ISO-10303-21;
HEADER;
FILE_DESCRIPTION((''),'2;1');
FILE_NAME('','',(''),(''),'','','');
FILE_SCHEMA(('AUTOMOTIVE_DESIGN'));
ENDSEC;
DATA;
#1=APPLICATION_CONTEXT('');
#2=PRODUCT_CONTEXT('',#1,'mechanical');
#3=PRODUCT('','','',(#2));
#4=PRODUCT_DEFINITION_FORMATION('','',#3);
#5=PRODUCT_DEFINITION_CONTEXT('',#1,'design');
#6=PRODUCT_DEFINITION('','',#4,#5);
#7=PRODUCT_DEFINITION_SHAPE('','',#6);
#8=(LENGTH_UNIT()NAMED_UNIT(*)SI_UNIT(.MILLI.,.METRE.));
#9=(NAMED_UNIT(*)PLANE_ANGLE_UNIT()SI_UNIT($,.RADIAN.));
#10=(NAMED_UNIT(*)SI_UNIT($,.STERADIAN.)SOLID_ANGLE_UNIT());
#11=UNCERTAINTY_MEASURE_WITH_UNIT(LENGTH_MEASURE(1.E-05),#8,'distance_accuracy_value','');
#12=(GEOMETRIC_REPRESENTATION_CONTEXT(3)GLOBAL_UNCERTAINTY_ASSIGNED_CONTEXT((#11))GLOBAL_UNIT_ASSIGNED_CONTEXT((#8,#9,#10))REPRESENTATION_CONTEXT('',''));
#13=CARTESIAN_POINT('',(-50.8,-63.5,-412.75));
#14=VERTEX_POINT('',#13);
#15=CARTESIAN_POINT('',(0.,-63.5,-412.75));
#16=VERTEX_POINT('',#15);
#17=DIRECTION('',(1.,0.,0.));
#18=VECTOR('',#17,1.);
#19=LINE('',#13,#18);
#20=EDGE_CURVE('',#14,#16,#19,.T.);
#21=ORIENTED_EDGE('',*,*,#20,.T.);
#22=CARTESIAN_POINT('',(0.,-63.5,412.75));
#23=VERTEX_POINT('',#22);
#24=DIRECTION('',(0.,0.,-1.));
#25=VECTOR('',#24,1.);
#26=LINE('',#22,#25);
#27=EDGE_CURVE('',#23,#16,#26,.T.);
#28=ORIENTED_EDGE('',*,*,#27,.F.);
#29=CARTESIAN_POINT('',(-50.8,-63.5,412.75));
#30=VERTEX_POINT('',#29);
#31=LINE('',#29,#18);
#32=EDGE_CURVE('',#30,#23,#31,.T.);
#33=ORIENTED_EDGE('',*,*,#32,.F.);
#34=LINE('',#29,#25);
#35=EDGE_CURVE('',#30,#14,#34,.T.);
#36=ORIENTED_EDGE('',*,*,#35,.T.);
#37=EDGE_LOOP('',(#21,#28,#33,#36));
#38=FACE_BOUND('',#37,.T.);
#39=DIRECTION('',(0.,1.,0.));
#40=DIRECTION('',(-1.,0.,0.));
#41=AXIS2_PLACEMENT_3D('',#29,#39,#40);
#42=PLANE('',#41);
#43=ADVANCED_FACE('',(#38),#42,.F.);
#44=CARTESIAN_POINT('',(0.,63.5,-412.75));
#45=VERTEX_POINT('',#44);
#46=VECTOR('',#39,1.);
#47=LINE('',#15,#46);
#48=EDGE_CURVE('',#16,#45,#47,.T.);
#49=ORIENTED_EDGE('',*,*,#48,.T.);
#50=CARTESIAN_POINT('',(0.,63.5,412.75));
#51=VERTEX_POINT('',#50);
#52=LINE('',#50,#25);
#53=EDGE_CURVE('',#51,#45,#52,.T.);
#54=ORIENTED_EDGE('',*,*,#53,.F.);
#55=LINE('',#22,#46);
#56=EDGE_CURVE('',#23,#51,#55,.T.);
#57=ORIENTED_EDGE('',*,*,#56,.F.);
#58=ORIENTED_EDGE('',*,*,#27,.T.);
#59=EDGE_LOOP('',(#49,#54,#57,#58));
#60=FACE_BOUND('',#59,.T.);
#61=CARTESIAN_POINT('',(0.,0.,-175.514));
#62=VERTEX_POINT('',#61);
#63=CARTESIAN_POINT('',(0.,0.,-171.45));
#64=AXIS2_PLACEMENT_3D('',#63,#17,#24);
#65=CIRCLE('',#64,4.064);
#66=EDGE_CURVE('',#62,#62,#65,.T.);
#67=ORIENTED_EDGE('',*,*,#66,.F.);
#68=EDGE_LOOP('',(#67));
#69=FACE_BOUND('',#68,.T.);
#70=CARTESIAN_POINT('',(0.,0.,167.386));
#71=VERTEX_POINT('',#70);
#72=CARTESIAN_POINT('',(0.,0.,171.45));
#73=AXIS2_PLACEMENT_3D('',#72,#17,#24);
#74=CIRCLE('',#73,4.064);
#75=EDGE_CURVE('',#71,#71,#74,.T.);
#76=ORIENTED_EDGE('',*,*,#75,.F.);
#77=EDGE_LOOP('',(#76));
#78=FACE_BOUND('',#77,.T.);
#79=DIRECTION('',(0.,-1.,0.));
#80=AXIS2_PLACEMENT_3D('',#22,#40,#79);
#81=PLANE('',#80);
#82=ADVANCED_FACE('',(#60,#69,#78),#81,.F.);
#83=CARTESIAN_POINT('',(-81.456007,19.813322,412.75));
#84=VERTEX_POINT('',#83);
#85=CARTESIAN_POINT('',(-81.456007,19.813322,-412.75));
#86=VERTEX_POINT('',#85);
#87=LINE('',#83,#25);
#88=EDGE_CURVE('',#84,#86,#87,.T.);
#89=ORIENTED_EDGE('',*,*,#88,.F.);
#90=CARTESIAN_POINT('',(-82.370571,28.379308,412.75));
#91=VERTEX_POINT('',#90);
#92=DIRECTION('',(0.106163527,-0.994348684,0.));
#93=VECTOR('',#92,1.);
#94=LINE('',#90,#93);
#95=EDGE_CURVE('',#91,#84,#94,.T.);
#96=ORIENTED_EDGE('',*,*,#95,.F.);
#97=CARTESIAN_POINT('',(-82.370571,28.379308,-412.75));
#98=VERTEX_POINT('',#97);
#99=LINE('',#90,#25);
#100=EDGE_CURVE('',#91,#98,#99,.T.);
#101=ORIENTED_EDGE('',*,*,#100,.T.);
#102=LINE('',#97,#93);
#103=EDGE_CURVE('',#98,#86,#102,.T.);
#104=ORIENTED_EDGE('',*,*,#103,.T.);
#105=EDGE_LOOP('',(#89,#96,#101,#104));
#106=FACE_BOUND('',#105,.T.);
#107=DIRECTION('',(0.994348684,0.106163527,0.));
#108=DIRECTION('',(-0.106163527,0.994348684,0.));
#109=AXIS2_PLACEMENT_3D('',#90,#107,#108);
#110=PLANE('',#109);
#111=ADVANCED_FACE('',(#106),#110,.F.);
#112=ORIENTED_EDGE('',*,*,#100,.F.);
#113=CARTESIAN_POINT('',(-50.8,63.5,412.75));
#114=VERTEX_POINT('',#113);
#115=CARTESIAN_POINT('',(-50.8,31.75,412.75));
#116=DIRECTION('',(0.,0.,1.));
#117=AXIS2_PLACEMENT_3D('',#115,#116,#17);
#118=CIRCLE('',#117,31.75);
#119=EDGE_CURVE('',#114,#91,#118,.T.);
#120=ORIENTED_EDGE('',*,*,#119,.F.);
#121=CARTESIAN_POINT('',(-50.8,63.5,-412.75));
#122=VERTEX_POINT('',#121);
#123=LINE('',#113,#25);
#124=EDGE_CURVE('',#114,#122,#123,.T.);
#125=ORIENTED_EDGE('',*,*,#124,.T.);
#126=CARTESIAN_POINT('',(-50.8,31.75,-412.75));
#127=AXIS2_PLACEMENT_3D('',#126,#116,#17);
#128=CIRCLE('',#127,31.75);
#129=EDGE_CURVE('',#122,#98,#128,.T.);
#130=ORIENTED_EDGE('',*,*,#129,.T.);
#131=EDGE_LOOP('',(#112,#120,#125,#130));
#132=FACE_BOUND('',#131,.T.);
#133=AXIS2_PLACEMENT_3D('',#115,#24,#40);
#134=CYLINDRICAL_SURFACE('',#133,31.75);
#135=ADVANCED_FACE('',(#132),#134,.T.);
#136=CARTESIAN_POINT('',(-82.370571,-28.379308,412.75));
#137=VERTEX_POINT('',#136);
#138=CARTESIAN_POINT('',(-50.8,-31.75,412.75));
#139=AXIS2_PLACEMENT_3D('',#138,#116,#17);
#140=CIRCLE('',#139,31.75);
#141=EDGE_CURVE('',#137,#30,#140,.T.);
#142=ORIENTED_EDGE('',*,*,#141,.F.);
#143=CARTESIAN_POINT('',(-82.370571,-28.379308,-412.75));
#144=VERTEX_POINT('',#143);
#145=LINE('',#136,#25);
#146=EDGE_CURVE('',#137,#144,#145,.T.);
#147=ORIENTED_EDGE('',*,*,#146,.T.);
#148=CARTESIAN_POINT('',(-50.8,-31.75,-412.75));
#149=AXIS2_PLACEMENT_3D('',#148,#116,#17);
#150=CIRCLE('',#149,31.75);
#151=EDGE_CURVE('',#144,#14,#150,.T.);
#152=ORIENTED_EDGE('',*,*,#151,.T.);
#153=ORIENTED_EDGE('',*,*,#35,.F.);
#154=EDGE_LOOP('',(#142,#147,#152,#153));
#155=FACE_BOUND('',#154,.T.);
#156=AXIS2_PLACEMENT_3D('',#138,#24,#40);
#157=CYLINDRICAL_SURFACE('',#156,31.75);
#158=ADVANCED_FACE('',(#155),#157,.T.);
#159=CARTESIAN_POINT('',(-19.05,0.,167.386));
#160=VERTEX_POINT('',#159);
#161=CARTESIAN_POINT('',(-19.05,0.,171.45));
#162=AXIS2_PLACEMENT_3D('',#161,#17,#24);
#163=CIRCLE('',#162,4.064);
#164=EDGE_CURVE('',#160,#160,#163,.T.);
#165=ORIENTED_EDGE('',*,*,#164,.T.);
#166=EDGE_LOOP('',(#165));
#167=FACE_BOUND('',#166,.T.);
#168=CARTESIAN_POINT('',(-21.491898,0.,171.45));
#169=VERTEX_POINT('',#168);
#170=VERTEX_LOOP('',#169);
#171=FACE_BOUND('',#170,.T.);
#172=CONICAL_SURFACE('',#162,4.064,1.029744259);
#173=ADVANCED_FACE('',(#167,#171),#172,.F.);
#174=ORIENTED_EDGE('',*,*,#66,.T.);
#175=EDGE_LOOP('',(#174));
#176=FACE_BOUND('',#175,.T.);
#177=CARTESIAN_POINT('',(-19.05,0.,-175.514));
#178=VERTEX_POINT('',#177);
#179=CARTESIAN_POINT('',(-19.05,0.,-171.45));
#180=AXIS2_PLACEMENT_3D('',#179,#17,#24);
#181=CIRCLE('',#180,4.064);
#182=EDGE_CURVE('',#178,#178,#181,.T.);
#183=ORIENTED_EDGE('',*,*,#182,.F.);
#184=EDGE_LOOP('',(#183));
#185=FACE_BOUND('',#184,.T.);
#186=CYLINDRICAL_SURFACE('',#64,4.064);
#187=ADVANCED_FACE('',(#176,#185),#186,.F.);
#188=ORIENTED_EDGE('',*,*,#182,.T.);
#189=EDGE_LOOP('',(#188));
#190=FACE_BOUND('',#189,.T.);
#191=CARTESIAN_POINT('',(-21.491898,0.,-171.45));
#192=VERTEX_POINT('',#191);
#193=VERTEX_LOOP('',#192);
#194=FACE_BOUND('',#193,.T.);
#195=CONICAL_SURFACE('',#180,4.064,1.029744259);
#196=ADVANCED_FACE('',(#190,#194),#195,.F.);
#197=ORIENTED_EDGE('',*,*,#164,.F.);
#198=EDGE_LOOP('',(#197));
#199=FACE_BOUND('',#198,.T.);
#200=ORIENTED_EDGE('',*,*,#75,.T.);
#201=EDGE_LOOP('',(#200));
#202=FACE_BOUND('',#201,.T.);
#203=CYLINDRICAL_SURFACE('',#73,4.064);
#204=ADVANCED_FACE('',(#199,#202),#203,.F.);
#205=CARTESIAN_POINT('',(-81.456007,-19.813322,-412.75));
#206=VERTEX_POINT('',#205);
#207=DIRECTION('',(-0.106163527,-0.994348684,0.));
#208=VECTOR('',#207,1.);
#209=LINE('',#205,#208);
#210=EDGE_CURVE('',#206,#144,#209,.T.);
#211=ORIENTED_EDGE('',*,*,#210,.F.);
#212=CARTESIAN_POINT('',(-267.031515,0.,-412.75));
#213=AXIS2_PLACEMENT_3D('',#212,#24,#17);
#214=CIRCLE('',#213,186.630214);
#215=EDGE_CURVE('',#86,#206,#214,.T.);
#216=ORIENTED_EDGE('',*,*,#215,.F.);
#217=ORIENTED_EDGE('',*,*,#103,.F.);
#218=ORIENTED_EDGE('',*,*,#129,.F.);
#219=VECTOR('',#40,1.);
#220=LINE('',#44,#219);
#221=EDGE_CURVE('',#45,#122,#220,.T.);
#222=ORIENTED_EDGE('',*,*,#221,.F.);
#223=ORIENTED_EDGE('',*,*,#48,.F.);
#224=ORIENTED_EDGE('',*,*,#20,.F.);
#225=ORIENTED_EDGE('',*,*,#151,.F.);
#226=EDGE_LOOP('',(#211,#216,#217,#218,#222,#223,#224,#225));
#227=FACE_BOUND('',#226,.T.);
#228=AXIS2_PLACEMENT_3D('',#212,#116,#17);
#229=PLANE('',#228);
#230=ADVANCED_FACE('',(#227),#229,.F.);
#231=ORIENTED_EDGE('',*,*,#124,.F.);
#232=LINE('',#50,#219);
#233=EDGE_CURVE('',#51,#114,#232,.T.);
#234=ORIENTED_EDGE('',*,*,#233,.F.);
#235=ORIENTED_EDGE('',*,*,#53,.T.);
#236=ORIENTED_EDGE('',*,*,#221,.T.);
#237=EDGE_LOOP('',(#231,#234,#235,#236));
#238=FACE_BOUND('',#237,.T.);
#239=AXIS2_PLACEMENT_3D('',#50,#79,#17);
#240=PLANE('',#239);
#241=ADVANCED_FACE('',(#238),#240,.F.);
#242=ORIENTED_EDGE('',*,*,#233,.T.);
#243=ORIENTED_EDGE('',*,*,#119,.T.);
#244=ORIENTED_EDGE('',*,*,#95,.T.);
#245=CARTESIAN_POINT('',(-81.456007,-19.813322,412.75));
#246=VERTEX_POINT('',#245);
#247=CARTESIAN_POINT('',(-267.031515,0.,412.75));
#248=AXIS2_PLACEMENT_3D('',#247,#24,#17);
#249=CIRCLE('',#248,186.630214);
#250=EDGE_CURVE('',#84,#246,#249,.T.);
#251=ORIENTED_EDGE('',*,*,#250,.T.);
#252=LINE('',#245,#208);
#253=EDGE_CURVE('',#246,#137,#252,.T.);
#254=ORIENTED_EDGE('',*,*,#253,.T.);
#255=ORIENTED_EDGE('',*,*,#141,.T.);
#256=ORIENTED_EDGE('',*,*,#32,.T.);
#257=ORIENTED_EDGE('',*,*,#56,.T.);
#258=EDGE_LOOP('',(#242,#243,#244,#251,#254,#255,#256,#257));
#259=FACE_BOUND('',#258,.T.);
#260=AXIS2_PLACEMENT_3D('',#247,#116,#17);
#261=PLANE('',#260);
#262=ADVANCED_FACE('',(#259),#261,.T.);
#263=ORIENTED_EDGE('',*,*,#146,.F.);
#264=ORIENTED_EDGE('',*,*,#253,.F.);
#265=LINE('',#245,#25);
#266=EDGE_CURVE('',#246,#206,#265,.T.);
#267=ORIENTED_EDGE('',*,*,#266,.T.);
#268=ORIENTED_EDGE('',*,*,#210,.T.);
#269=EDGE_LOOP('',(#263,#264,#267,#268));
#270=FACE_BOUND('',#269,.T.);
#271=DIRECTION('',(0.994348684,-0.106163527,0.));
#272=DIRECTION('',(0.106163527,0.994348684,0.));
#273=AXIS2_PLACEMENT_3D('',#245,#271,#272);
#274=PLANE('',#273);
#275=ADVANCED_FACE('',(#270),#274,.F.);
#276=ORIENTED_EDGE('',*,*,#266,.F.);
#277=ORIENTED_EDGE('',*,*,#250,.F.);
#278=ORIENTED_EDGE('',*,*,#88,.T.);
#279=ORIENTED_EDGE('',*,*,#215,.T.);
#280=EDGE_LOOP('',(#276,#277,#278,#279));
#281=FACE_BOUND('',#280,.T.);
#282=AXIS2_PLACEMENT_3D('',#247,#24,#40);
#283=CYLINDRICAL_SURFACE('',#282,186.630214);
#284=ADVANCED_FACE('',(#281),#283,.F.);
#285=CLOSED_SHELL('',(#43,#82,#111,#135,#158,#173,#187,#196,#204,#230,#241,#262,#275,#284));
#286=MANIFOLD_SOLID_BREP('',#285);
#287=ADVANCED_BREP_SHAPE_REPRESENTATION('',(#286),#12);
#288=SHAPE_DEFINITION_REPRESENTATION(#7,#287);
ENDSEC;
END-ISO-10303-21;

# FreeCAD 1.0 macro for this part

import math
import FreeCAD as App
import Part
import Sketcher
from FreeCAD import Vector
Q = App.Units.Quantity

doc = App.newDocument("Part")
body = doc.addObject("PartDesign::Body", "Body")

sketch1 = body.newObject("Sketcher::SketchObject", "Sketch")
sketch1.AttachmentSupport = (doc.getObject("XY_Plane"), [""])
sketch1.MapMode = "FlatFace"
sketch1.addGeometry(Part.LineSegment(Vector(-81.456007, -19.813322, 0), Vector(-82.370571, -28.379308, 0)), False)
sketch1.addGeometry(Part.ArcOfCircle(Part.Circle(Vector(-50.8, -31.75, 0), Vector(0, 0, 1), 31.75), math.radians(173.905794), math.radians(270)), False)
sketch1.addGeometry(Part.LineSegment(Vector(-50.8, -63.5, 0), Vector(0, -63.5, 0)), False)
sketch1.addGeometry(Part.LineSegment(Vector(0, -63.5, 0), Vector(0, 63.5, 0)), False)
sketch1.addGeometry(Part.LineSegment(Vector(0, 63.5, 0), Vector(-50.8, 63.5, 0)), False)
sketch1.addGeometry(Part.ArcOfCircle(Part.Circle(Vector(-50.8, 31.75, 0), Vector(0, 0, 1), 31.75), math.radians(90), math.radians(186.094206)), False)
sketch1.addGeometry(Part.LineSegment(Vector(-82.370571, 28.379308, 0), Vector(-81.456007, 19.813322, 0)), False)
sketch1.addGeometry(Part.ArcOfCircle(Part.Circle(Vector(-267.031515, 0, 0), Vector(0, 0, 1), 186.630214), math.radians(-6.094206), math.radians(6.094206)), False)
sketch1.addConstraint(Sketcher.Constraint("Tangent", 0, 2, 1, 1))
sketch1.addConstraint(Sketcher.Constraint("Tangent", 1, 2, 2, 1))
sketch1.addConstraint(Sketcher.Constraint("Coincident", 2, 2, 3, 1))
sketch1.addConstraint(Sketcher.Constraint("Coincident", 3, 2, 4, 1))
sketch1.addConstraint(Sketcher.Constraint("Tangent", 4, 2, 5, 1))
sketch1.addConstraint(Sketcher.Constraint("Tangent", 5, 2, 6, 1))
sketch1.addConstraint(Sketcher.Constraint("Tangent", 6, 2, 7, 2))
sketch1.addConstraint(Sketcher.Constraint("Tangent", 7, 1, 0, 1))
sketch1.addConstraint(Sketcher.Constraint("Horizontal", 2))
sketch1.addConstraint(Sketcher.Constraint("Vertical", 3))
sketch1.addConstraint(Sketcher.Constraint("Horizontal", 4))
sketch1.addConstraint(Sketcher.Constraint("Equal", 1, 5))
sketch1.addConstraint(Sketcher.Constraint("Symmetric", 2, 2, 3, 2, -1, 1))
sketch1.addConstraint(Sketcher.Constraint("Symmetric", 0, 2, 5, 2, -1))
sketch1.addConstraint(Sketcher.Constraint("DistanceX", 2, 1, 2, 2, Q("2 in")))
sketch1.addConstraint(Sketcher.Constraint("DistanceY", 3, 1, 3, 2, Q("5 in")))
sketch1.addConstraint(Sketcher.Constraint("Radius", 1, Q("1.25 in")))
sketch1.addConstraint(Sketcher.Constraint("Radius", 7, Q("186.630214 mm")))
sketch1.addConstraint(Sketcher.Constraint("Distance", 0, Q("8.61467 mm")))
pad1 = body.newObject("PartDesign::Pad", "Pad")
pad1.Profile = sketch1
pad1.Length = Q("32.5 in")
pad1.Midplane = True

sketch2 = body.newObject("Sketcher::SketchObject", "Sketch001")
sketch2.AttachmentSupport = (doc.getObject("YZ_Plane"), [""])
sketch2.MapMode = "FlatFace"
sketch2.addGeometry(Part.Circle(Vector(0, 171.45, 0), Vector(0, 0, 1), 4.064), False)
sketch2.addGeometry(Part.Circle(Vector(0, -171.45, 0), Vector(0, 0, 1), 4.064), False)
sketch2.addConstraint(Sketcher.Constraint("Equal", 0, 1))
sketch2.addConstraint(Sketcher.Constraint("Symmetric", 0, 3, 1, 3, -1, 1))
sketch2.addConstraint(Sketcher.Constraint("PointOnObject", 0, 3, -2))
sketch2.addConstraint(Sketcher.Constraint("Diameter", 0, Q("0.32 in")))
sketch2.addConstraint(Sketcher.Constraint("DistanceY", 1, 3, 0, 3, Q("13.5 in")))
doc.recompute()
hole = body.newObject("PartDesign::Hole", "Hole")
hole.Profile = sketch2
hole.ThreadType = "None"
hole.Diameter = Q("0.32 in")
hole.DepthType = "Dimension"
hole.Depth = Q("0.75 in")
hole.DrillPoint = "Angled"
hole.DrillPointAngle = 118

doc.recompute()
